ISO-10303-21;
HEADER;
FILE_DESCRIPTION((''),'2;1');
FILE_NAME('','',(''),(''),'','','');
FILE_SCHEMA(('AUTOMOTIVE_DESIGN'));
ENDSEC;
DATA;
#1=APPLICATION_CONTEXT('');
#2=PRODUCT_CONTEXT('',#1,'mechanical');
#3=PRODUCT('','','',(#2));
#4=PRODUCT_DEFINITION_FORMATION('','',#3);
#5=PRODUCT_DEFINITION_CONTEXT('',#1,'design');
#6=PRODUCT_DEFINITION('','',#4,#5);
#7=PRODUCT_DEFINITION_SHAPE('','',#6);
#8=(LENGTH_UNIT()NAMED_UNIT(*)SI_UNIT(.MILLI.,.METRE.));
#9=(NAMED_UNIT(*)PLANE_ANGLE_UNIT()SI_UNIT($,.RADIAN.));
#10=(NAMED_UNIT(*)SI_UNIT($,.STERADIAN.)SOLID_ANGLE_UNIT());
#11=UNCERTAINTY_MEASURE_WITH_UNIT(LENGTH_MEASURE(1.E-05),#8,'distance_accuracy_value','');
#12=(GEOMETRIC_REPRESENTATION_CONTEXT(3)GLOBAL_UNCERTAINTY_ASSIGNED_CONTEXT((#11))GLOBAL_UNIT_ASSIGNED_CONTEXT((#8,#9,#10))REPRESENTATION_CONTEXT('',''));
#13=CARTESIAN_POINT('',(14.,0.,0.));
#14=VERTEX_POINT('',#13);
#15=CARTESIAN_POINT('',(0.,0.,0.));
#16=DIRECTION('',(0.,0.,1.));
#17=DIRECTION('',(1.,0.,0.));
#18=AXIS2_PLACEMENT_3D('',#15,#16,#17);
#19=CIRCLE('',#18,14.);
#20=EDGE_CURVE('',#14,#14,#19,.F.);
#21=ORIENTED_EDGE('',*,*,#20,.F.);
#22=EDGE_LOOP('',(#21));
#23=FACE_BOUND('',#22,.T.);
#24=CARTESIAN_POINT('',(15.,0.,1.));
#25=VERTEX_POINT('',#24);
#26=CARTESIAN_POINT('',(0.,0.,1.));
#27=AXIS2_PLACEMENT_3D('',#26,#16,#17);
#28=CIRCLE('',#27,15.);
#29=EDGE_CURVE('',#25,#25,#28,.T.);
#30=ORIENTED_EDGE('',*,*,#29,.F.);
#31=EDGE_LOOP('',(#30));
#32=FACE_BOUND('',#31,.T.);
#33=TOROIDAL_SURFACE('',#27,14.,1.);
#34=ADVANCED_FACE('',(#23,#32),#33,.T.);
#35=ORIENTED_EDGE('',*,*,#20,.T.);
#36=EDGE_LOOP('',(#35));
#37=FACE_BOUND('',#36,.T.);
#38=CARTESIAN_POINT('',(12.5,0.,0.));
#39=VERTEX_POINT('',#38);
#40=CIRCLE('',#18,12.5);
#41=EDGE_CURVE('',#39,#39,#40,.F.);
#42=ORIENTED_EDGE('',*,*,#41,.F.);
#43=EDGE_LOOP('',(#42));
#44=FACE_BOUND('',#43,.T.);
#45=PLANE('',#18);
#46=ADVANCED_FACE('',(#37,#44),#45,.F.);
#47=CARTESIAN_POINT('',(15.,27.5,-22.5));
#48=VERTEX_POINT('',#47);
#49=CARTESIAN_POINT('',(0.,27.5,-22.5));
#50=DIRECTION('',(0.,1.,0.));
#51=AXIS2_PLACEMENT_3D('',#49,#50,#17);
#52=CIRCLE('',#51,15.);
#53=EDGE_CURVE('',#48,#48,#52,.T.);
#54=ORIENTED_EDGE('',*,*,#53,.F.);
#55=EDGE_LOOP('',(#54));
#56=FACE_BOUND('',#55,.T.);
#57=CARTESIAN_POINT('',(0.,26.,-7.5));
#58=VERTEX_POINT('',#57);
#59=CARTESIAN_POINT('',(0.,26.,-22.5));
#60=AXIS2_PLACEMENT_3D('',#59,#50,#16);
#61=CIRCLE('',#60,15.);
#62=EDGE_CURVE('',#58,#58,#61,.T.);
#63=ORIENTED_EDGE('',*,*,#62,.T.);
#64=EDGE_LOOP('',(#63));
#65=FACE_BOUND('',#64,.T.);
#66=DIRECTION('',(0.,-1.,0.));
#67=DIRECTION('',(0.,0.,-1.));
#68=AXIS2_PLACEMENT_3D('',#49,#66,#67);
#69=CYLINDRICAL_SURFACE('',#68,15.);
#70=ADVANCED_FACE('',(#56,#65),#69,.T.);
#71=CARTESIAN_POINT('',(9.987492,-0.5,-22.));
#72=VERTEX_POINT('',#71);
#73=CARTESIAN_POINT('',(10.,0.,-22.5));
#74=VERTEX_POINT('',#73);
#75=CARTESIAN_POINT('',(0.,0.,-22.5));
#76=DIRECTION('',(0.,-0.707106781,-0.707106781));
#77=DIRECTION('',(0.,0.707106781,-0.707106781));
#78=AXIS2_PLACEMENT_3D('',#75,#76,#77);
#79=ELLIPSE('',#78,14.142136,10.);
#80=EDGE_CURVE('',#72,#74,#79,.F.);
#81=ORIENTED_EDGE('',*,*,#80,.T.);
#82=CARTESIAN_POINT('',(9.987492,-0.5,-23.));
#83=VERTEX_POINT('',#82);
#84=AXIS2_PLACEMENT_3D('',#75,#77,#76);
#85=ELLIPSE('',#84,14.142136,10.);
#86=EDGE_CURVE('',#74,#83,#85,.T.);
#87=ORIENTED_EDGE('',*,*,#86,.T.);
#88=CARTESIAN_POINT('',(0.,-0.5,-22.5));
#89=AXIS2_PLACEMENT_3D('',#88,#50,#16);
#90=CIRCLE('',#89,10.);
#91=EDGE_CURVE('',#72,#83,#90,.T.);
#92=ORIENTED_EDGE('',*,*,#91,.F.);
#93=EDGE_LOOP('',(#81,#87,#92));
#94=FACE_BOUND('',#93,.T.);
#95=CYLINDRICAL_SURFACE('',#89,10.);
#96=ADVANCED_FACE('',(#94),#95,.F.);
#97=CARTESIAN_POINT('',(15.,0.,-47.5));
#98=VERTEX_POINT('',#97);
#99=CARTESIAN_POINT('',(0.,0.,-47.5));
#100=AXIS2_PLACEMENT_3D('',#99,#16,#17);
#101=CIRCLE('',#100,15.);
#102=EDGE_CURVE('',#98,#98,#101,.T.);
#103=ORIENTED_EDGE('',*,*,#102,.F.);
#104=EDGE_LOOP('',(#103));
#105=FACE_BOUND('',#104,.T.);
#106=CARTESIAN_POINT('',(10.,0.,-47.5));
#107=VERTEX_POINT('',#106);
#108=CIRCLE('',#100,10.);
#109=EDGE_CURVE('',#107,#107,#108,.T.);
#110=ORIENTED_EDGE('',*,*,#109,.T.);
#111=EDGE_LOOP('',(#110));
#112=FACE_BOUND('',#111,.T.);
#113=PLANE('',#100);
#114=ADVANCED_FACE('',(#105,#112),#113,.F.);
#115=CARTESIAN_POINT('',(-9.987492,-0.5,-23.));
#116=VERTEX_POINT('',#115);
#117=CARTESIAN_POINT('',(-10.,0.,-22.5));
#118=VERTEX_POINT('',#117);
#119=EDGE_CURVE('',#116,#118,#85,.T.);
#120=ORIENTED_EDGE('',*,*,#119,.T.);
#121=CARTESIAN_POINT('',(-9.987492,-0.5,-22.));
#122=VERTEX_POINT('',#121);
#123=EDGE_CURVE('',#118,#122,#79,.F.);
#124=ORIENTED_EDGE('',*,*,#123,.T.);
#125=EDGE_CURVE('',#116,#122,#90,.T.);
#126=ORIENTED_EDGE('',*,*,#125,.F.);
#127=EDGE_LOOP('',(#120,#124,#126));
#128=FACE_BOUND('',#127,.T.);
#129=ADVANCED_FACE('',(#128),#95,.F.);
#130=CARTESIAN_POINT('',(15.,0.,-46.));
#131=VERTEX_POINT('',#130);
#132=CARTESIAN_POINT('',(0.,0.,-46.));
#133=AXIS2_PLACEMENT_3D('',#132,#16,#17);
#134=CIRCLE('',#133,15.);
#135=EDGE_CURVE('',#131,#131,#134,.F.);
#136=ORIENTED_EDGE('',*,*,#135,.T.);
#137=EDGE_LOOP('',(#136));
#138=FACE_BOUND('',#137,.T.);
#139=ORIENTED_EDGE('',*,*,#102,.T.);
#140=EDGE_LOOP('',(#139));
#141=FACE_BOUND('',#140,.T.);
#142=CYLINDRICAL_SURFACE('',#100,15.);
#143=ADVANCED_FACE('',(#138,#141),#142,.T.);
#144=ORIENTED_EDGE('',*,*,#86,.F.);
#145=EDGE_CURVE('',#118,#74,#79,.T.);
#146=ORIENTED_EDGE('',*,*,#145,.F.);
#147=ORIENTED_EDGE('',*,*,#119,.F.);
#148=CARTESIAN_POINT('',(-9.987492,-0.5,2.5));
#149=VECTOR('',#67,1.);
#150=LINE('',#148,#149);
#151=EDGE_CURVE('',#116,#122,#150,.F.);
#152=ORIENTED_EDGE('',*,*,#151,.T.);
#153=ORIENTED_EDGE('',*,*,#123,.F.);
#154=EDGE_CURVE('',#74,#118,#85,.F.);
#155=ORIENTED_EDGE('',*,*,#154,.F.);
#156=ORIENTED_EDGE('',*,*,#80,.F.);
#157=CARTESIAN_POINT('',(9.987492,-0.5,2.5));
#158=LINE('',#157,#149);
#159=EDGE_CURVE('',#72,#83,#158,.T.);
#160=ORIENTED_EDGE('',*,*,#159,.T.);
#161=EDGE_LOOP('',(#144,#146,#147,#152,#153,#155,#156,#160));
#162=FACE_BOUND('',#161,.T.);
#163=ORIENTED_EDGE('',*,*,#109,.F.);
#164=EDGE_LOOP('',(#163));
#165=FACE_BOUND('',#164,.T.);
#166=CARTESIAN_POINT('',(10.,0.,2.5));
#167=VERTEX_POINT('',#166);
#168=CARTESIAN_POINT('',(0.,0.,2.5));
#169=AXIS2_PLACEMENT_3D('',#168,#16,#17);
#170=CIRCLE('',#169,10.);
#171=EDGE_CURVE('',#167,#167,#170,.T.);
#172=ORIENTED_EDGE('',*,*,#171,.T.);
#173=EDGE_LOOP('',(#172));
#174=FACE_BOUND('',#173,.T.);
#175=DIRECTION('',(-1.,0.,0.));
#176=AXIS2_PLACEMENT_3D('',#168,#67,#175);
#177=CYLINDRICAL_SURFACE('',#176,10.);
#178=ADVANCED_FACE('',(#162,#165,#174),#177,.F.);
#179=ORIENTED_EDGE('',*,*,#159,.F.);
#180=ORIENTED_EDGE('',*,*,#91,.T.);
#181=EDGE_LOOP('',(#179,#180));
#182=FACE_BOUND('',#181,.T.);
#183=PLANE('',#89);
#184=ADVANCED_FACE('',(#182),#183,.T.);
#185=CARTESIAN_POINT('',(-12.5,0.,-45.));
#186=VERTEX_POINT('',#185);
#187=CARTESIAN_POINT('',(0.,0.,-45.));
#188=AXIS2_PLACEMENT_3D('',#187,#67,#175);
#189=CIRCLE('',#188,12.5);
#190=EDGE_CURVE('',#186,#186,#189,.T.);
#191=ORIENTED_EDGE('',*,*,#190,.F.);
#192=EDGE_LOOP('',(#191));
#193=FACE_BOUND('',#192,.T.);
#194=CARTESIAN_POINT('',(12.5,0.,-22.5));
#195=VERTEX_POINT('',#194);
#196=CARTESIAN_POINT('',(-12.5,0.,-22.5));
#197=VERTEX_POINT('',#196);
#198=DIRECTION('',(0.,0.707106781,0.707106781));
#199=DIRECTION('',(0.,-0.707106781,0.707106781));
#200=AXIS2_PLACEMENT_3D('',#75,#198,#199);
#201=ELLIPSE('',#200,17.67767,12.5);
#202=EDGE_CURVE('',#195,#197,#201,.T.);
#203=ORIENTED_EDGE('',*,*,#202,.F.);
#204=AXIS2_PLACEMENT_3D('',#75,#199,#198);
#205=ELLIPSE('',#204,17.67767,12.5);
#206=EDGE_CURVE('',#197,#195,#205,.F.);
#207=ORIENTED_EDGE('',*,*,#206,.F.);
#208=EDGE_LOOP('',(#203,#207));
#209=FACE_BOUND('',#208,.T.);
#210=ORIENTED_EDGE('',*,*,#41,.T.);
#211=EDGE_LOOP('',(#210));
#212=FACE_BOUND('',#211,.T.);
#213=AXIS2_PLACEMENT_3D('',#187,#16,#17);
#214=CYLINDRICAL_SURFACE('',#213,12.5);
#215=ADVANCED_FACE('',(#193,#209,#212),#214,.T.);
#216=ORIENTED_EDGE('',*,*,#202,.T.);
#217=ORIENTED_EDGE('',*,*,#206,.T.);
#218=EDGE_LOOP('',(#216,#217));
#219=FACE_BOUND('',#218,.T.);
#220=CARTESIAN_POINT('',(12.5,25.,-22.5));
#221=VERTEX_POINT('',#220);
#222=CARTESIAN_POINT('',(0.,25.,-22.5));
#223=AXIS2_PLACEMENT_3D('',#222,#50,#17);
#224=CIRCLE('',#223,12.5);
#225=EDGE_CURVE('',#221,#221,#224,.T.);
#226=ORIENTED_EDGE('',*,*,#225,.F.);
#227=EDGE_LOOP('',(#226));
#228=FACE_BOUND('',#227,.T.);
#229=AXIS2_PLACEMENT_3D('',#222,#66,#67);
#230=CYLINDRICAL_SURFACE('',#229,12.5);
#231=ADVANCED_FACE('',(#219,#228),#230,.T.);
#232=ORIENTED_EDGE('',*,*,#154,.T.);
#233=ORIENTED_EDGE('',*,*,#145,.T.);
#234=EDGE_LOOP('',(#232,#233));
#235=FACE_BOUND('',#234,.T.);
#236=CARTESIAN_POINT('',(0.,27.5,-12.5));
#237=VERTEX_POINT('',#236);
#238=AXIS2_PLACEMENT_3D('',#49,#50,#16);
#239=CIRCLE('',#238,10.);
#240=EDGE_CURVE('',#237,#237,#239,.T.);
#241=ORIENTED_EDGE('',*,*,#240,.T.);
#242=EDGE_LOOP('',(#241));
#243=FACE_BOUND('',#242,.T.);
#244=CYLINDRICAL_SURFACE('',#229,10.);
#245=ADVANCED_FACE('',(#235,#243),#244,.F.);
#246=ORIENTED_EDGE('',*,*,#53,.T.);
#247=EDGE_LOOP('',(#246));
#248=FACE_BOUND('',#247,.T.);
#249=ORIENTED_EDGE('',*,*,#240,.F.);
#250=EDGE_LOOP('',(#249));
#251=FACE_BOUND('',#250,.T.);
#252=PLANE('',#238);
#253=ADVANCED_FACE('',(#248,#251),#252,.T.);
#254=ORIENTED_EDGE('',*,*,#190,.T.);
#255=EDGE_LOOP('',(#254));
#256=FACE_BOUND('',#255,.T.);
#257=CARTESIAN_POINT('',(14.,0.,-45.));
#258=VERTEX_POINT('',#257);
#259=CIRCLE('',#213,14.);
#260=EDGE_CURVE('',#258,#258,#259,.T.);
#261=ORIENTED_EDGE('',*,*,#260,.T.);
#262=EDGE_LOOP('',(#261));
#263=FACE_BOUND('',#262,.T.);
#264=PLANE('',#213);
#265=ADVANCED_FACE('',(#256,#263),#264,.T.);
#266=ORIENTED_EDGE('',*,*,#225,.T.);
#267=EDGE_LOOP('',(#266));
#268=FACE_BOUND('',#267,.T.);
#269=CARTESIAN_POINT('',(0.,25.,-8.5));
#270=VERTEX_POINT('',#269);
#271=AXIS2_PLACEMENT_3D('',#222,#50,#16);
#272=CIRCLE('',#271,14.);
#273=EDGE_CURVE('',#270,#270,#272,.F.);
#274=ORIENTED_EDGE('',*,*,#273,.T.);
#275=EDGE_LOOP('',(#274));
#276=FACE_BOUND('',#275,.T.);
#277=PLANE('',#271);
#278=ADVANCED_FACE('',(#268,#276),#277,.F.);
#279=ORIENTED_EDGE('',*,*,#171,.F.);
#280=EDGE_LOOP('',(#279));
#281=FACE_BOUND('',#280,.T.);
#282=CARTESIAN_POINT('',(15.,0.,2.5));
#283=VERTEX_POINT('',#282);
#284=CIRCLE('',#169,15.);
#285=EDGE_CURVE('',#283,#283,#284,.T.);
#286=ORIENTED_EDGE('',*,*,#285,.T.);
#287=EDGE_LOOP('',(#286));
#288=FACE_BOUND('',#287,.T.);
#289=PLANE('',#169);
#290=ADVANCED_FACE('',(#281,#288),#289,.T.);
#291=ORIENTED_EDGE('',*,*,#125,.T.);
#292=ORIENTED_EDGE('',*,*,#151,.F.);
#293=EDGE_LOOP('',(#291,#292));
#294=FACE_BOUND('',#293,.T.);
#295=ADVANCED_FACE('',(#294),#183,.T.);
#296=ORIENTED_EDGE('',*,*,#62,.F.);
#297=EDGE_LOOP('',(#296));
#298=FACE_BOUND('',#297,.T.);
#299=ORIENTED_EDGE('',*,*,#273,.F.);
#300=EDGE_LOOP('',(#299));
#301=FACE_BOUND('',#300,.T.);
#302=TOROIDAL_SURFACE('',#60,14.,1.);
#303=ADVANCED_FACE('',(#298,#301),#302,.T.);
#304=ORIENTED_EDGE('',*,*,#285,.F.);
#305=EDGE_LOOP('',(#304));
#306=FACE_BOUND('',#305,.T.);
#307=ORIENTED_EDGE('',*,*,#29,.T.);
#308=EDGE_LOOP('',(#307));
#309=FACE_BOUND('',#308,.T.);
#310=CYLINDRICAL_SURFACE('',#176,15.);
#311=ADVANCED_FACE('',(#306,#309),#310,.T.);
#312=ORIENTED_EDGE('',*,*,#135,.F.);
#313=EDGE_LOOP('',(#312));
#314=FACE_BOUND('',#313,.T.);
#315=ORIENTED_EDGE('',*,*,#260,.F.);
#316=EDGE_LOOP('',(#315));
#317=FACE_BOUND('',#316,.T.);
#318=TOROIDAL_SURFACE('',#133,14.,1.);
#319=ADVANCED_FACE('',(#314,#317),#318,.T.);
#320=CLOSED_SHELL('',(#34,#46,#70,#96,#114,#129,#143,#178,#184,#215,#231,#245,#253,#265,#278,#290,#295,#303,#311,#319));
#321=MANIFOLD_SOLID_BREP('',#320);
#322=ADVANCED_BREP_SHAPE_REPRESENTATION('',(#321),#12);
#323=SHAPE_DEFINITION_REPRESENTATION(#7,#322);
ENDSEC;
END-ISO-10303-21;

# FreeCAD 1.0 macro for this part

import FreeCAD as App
import Part
import Sketcher
from FreeCAD import Vector
Q = App.Units.Quantity


def edges_at(feature, points):
    """Names of the edges that pass closest to the given points."""
    edges = feature.Shape.Edges
    near = lambda p: min(range(len(edges)), key=lambda i: edges[i].distToShape(Part.Vertex(*p))[0])
    return sorted({f"Edge{near(p) + 1}" for p in points})

doc = App.newDocument("Part")
params = doc.addObject("Spreadsheet::Sheet", "Params")
for row, (alias, value) in enumerate([
    ("sketch1_diameter", "30 mm"),
    ("sketch1_diameter2", "20 mm"),
    ("pad1_length", "2.5 mm"),
    ("sketch2_diameter", "25 mm"),
    ("sketch2_diameter2", "20 mm"),
    ("pad2_length", "45 mm"),
    ("fillet_radius", "1 mm"),
    ("sketch3_diameter", "25 mm"),
    ("sketch3_diameter2", "20 mm"),
    ("pad3_length", "25 mm"),
    ("sketch4_diameter", "30 mm"),
    ("sketch4_diameter2", "20 mm"),
    ("pad4_length", "2.5 mm"),
    ("fillet2_radius", "1 mm"),
    ("sketch5_diameter", "20 mm"),
    ("sketch6_diameter", "20 mm"),
    ("pocket2_length", "28 mm"),
], start=1):
    params.set(f"A{row}", alias)
    params.set(f"B{row}", "=" + value)
    params.setAlias(f"B{row}", alias)

body = doc.addObject("PartDesign::Body", "Body")

# Sketch on XY plane
sketch1 = doc.addObject("Sketcher::SketchObject", "Sketch")
body.addObject(sketch1)
sketch1.AttachmentSupport = (doc.XY_Plane, [""])
sketch1.MapMode = "FlatFace"
sketch1.addGeometry(Part.Circle(Vector(0, 0, 0), Vector(0, 0, 1), 15), False)
sketch1.addGeometry(Part.Circle(Vector(0, 0, 0), Vector(0, 0, 1), 10), False)
sketch1.addConstraint(Sketcher.Constraint("Coincident", 0, 3, -1, 1))
sketch1.addConstraint(Sketcher.Constraint("Coincident", 1, 3, -1, 1))
sketch1.addConstraint(Sketcher.Constraint("Diameter", 0, Q("30 mm")))
sketch1.addConstraint(Sketcher.Constraint("Diameter", 1, Q("20 mm")))
sketch1.setExpression("Constraints[2]", "Params.sketch1_diameter")
sketch1.setExpression("Constraints[3]", "Params.sketch1_diameter2")
pad1 = doc.addObject("PartDesign::Pad", "Pad")
body.addObject(pad1)
pad1.Profile = sketch1
pad1.setExpression("Length", "Params.pad1_length")

# Sketch on XY plane
sketch2 = doc.addObject("Sketcher::SketchObject", "Sketch001")
body.addObject(sketch2)
sketch2.AttachmentSupport = (doc.XY_Plane, [""])
sketch2.MapMode = "FlatFace"
sketch2.addGeometry(Part.Circle(Vector(0, 0, 0), Vector(0, 0, 1), 12), False)
sketch2.addGeometry(Part.Circle(Vector(0, 0, 0), Vector(0, 0, 1), 10), False)
sketch2.addConstraint(Sketcher.Constraint("Coincident", 0, 3, -1, 1))
sketch2.addConstraint(Sketcher.Constraint("Coincident", 1, 3, -1, 1))
sketch2.addConstraint(Sketcher.Constraint("Diameter", 0, Q("25 mm")))
sketch2.addConstraint(Sketcher.Constraint("Diameter", 1, Q("20 mm")))
sketch2.setExpression("Constraints[2]", "Params.sketch2_diameter")
sketch2.setExpression("Constraints[3]", "Params.sketch2_diameter2")
pad2 = doc.addObject("PartDesign::Pad", "Pad001")
body.addObject(pad2)
pad2.Profile = sketch2
pad2.setExpression("Length", "Params.pad2_length")
pad2.Reversed = True
doc.recompute()

datumplane = doc.addObject("PartDesign::Plane", "DatumPlane")
body.addObject(datumplane)
datumplane.AttachmentSupport = (doc.XY_Plane, [""])
datumplane.MapMode = "FlatFace"
datumplane.AttachmentOffset = App.Placement(Vector(0, 0, -22.5), App.Rotation())
mirrored = doc.addObject("PartDesign::Mirrored", "Mirrored")
body.addObject(mirrored)
mirrored.Originals = [pad1]
mirrored.MirrorPlane = (datumplane, [""])
body.Tip = mirrored
doc.recompute()

fillet = doc.addObject("PartDesign::Fillet", "Fillet")
body.addObject(fillet)
fillet.Base = (mirrored, edges_at(mirrored, [(-15, 0, -45), (-15, 0, 0)]))
fillet.setExpression("Radius", "Params.fillet_radius")

# Sketch on XZ plane
sketch3 = doc.addObject("Sketcher::SketchObject", "Sketch002")
body.addObject(sketch3)
sketch3.AttachmentSupport = (doc.XZ_Plane, [""])
sketch3.MapMode = "FlatFace"
sketch3.addGeometry(Part.Circle(Vector(0, -22, 0), Vector(0, 0, 1), 12), False)
sketch3.addGeometry(Part.Circle(Vector(0, -22, 0), Vector(0, 0, 1), 10), False)
sketch3.addConstraint(Sketcher.Constraint("Coincident", 1, 3, 0, 3))
sketch3.addConstraint(Sketcher.Constraint("PointOnObject", 0, 3, -2))
sketch3.addConstraint(Sketcher.Constraint("Diameter", 0, Q("25 mm")))
sketch3.addConstraint(Sketcher.Constraint("Diameter", 1, Q("20 mm")))
sketch3.addConstraint(Sketcher.Constraint("DistanceY", 0, 3, -1, 1, Q("22.5 mm")))
sketch3.setExpression("Constraints[2]", "Params.sketch3_diameter")
sketch3.setExpression("Constraints[3]", "Params.sketch3_diameter2")
pad3 = doc.addObject("PartDesign::Pad", "Pad002")
body.addObject(pad3)
pad3.Profile = sketch3
pad3.setExpression("Length", "Params.pad3_length")
pad3.Reversed = True

# Sketch on XZ plane
sketch4 = doc.addObject("Sketcher::SketchObject", "Sketch003")
body.addObject(sketch4)
sketch4.AttachmentSupport = (doc.XZ_Plane, [""])
sketch4.MapMode = "FlatFace"
sketch4.AttachmentOffset = App.Placement(Vector(0, 0, -25), App.Rotation())
sketch4.addGeometry(Part.Circle(Vector(0, -22, 0), Vector(0, 0, 1), 15), False)
sketch4.addGeometry(Part.Circle(Vector(0, -22, 0), Vector(0, 0, 1), 10), False)
sketch4.addConstraint(Sketcher.Constraint("Coincident", 1, 3, 0, 3))
sketch4.addConstraint(Sketcher.Constraint("PointOnObject", 0, 3, -2))
sketch4.addConstraint(Sketcher.Constraint("Diameter", 0, Q("30 mm")))
sketch4.addConstraint(Sketcher.Constraint("Diameter", 1, Q("20 mm")))
sketch4.addConstraint(Sketcher.Constraint("DistanceY", 0, 3, -1, 1, Q("22.5 mm")))
sketch4.setExpression("Constraints[2]", "Params.sketch4_diameter")
sketch4.setExpression("Constraints[3]", "Params.sketch4_diameter2")
pad4 = doc.addObject("PartDesign::Pad", "Pad003")
body.addObject(pad4)
pad4.Profile = sketch4
pad4.setExpression("Length", "Params.pad4_length")
pad4.Reversed = True
doc.recompute()

fillet2 = doc.addObject("PartDesign::Fillet", "Fillet001")
body.addObject(fillet2)
fillet2.Base = (pad4, edges_at(pad4, [(-15, 25, -22.5)]))
fillet2.setExpression("Radius", "Params.fillet2_radius")

# Sketch on XY plane
sketch5 = doc.addObject("Sketcher::SketchObject", "Sketch004")
body.addObject(sketch5)
sketch5.AttachmentSupport = (doc.XY_Plane, [""])
sketch5.MapMode = "FlatFace"
sketch5.AttachmentOffset = App.Placement(Vector(0, 0, -47.5), App.Rotation())
sketch5.addGeometry(Part.Circle(Vector(0, 0, 0), Vector(0, 0, 1), 10), False)
sketch5.addConstraint(Sketcher.Constraint("Coincident", 0, 3, -1, 1))
sketch5.addConstraint(Sketcher.Constraint("Diameter", 0, Q("20 mm")))
sketch5.setExpression("Constraints[1]", "Params.sketch5_diameter")
pocket1 = doc.addObject("PartDesign::Pocket", "Pocket")
body.addObject(pocket1)
pocket1.Profile = sketch5
pocket1.Type = "ThroughAll"
pocket1.Reversed = True

# Sketch on XZ plane
sketch6 = doc.addObject("Sketcher::SketchObject", "Sketch005")
body.addObject(sketch6)
sketch6.AttachmentSupport = (doc.XZ_Plane, [""])
sketch6.MapMode = "FlatFace"
sketch6.AttachmentOffset = App.Placement(Vector(0, 0, -27.5), App.Rotation())
sketch6.addGeometry(Part.Circle(Vector(0, -22, 0), Vector(0, 0, 1), 10), False)
sketch6.addConstraint(Sketcher.Constraint("PointOnObject", 0, 3, -2))
sketch6.addConstraint(Sketcher.Constraint("Diameter", 0, Q("20 mm")))
sketch6.addConstraint(Sketcher.Constraint("DistanceY", 0, 3, -1, 1, Q("22.5 mm")))
sketch6.setExpression("Constraints[1]", "Params.sketch6_diameter")
pocket2 = doc.addObject("PartDesign::Pocket", "Pocket001")
body.addObject(pocket2)
pocket2.Profile = sketch6
pocket2.setExpression("Length", "Params.pocket2_length")
pocket2.Reversed = True

doc.recompute()
